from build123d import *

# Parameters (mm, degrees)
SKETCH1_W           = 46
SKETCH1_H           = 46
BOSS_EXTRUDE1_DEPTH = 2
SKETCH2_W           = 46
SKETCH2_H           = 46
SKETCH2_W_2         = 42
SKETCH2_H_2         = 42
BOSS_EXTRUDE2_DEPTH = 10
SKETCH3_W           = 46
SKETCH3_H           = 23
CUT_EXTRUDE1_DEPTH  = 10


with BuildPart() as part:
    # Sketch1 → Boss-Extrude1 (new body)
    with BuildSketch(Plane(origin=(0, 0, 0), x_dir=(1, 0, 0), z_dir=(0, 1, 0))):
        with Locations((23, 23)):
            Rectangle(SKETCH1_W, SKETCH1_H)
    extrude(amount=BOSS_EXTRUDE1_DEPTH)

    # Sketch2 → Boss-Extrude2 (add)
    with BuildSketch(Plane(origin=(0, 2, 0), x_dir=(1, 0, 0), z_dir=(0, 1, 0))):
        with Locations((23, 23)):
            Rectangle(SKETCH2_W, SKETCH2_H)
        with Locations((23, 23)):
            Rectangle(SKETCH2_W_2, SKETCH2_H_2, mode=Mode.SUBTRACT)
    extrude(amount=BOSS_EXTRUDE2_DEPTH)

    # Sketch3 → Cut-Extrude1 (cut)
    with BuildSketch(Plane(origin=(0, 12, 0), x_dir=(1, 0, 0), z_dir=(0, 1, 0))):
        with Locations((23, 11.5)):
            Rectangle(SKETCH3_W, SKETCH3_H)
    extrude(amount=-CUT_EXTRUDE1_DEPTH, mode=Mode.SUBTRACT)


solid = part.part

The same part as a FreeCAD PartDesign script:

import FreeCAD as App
import Part
import Sketcher
Q = App.Units.Quantity

doc = App.newDocument("Part")
body = doc.addObject("PartDesign::Body", "Body")

sketch1 = doc.addObject("Sketcher::SketchObject", "Sketch")
body.addObject(sketch1)
sketch1.AttachmentSupport = (doc.XZ_Plane, [""])
sketch1.MapMode = "FlatFace"
sketch1.addGeometry(Part.LineSegment(App.Vector(0, -46, 0), App.Vector(0, 0, 0)), False)
sketch1.addGeometry(Part.LineSegment(App.Vector(0, 0, 0), App.Vector(46, 0, 0)), False)
sketch1.addGeometry(Part.LineSegment(App.Vector(46, 0, 0), App.Vector(46, -46, 0)), False)
sketch1.addGeometry(Part.LineSegment(App.Vector(46, -46, 0), App.Vector(0, -46, 0)), False)
sketch1.addConstraint(Sketcher.Constraint("Coincident", 0, 2, 1, 1))
sketch1.addConstraint(Sketcher.Constraint("Coincident", 1, 2, 2, 1))
sketch1.addConstraint(Sketcher.Constraint("Coincident", 2, 2, 3, 1))
sketch1.addConstraint(Sketcher.Constraint("Coincident", 3, 2, 0, 1))
sketch1.addConstraint(Sketcher.Constraint("Vertical", 0))
sketch1.addConstraint(Sketcher.Constraint("Horizontal", 1))
sketch1.addConstraint(Sketcher.Constraint("Vertical", 2))
sketch1.addConstraint(Sketcher.Constraint("Horizontal", 3))
sketch1.addConstraint(Sketcher.Constraint("Coincident", 0, 2, -1, 1))
sketch1.addConstraint(Sketcher.Constraint("Equal", 3, 0))
sketch1.addConstraint(Sketcher.Constraint("DistanceX", 1, 1, 1, 2, Q("46 mm")))
pad1 = doc.addObject("PartDesign::Pad", "Pad")
body.addObject(pad1)
pad1.Profile = sketch1
pad1.Length = 2
pad1.Reversed = True

sketch2 = doc.addObject("Sketcher::SketchObject", "Sketch001")
body.addObject(sketch2)
sketch2.AttachmentSupport = (doc.XZ_Plane, [""])
sketch2.MapMode = "FlatFace"
sketch2.AttachmentOffset = App.Placement(App.Vector(0, 0, -2), App.Rotation())
sketch2.addGeometry(Part.LineSegment(App.Vector(0, -46, 0), App.Vector(0, 0, 0)), False)
sketch2.addGeometry(Part.LineSegment(App.Vector(0, 0, 0), App.Vector(46, 0, 0)), False)
sketch2.addGeometry(Part.LineSegment(App.Vector(46, 0, 0), App.Vector(46, -46, 0)), False)
sketch2.addGeometry(Part.LineSegment(App.Vector(46, -46, 0), App.Vector(0, -46, 0)), False)
sketch2.addGeometry(Part.LineSegment(App.Vector(44, -2, 0), App.Vector(2, -2, 0)), False)
sketch2.addGeometry(Part.LineSegment(App.Vector(2, -2, 0), App.Vector(2, -44, 0)), False)
sketch2.addGeometry(Part.LineSegment(App.Vector(2, -44, 0), App.Vector(44, -44, 0)), False)
sketch2.addGeometry(Part.LineSegment(App.Vector(44, -44, 0), App.Vector(44, -2, 0)), False)
sketch2.addConstraint(Sketcher.Constraint("Coincident", 0, 2, 1, 1))
sketch2.addConstraint(Sketcher.Constraint("Coincident", 1, 2, 2, 1))
sketch2.addConstraint(Sketcher.Constraint("Coincident", 2, 2, 3, 1))
sketch2.addConstraint(Sketcher.Constraint("Coincident", 3, 2, 0, 1))
sketch2.addConstraint(Sketcher.Constraint("Coincident", 4, 2, 5, 1))
sketch2.addConstraint(Sketcher.Constraint("Coincident", 5, 2, 6, 1))
sketch2.addConstraint(Sketcher.Constraint("Coincident", 6, 2, 7, 1))
sketch2.addConstraint(Sketcher.Constraint("Coincident", 7, 2, 4, 1))
sketch2.addConstraint(Sketcher.Constraint("Vertical", 0))
sketch2.addConstraint(Sketcher.Constraint("Horizontal", 1))
sketch2.addConstraint(Sketcher.Constraint("Vertical", 2))
sketch2.addConstraint(Sketcher.Constraint("Horizontal", 3))
sketch2.addConstraint(Sketcher.Constraint("Horizontal", 4))
sketch2.addConstraint(Sketcher.Constraint("Vertical", 5))
sketch2.addConstraint(Sketcher.Constraint("Horizontal", 6))
sketch2.addConstraint(Sketcher.Constraint("Vertical", 7))
sketch2.addConstraint(Sketcher.Constraint("Coincident", 0, 2, -1, 1))
sketch2.addConstraint(Sketcher.Constraint("Equal", 3, 0))
sketch2.addConstraint(Sketcher.Constraint("Equal", 6, 5))
sketch2.addConstraint(Sketcher.Constraint("DistanceX", 1, 1, 1, 2, Q("46 mm")))
sketch2.addConstraint(Sketcher.Constraint("DistanceX", 4, 2, 4, 1, Q("42 mm")))
sketch2.addConstraint(Sketcher.Constraint("DistanceX", -1, 1, 4, 2, Q("2 mm")))
sketch2.addConstraint(Sketcher.Constraint("DistanceY", 4, 2, -1, 1, Q("2 mm")))
pad2 = doc.addObject("PartDesign::Pad", "Pad001")
body.addObject(pad2)
pad2.Profile = sketch2
pad2.Length = 10
pad2.Reversed = True

sketch3 = doc.addObject("Sketcher::SketchObject", "Sketch002")
body.addObject(sketch3)
sketch3.AttachmentSupport = (doc.XZ_Plane, [""])
sketch3.MapMode = "FlatFace"
sketch3.AttachmentOffset = App.Placement(App.Vector(0, 0, -12), App.Rotation())
sketch3.addGeometry(Part.LineSegment(App.Vector(0, -23, 0), App.Vector(0, 0, 0)), False)
sketch3.addGeometry(Part.LineSegment(App.Vector(0, 0, 0), App.Vector(46, 0, 0)), False)
sketch3.addGeometry(Part.LineSegment(App.Vector(46, 0, 0), App.Vector(46, -23, 0)), False)
sketch3.addGeometry(Part.LineSegment(App.Vector(46, -23, 0), App.Vector(0, -23, 0)), False)
sketch3.addConstraint(Sketcher.Constraint("Coincident", 0, 2, 1, 1))
sketch3.addConstraint(Sketcher.Constraint("Coincident", 1, 2, 2, 1))
sketch3.addConstraint(Sketcher.Constraint("Coincident", 2, 2, 3, 1))
sketch3.addConstraint(Sketcher.Constraint("Coincident", 3, 2, 0, 1))
sketch3.addConstraint(Sketcher.Constraint("Vertical", 0))
sketch3.addConstraint(Sketcher.Constraint("Horizontal", 1))
sketch3.addConstraint(Sketcher.Constraint("Vertical", 2))
sketch3.addConstraint(Sketcher.Constraint("Horizontal", 3))
sketch3.addConstraint(Sketcher.Constraint("Coincident", 0, 2, -1, 1))
sketch3.addConstraint(Sketcher.Constraint("DistanceX", 1, 1, 1, 2, Q("46 mm")))
sketch3.addConstraint(Sketcher.Constraint("DistanceY", 0, 1, 0, 2, Q("23 mm")))
pocket1 = doc.addObject("PartDesign::Pocket", "Pocket")
body.addObject(pocket1)
pocket1.Profile = sketch3
pocket1.Length = 10
pocket1.Reversed = True

doc.recompute()
